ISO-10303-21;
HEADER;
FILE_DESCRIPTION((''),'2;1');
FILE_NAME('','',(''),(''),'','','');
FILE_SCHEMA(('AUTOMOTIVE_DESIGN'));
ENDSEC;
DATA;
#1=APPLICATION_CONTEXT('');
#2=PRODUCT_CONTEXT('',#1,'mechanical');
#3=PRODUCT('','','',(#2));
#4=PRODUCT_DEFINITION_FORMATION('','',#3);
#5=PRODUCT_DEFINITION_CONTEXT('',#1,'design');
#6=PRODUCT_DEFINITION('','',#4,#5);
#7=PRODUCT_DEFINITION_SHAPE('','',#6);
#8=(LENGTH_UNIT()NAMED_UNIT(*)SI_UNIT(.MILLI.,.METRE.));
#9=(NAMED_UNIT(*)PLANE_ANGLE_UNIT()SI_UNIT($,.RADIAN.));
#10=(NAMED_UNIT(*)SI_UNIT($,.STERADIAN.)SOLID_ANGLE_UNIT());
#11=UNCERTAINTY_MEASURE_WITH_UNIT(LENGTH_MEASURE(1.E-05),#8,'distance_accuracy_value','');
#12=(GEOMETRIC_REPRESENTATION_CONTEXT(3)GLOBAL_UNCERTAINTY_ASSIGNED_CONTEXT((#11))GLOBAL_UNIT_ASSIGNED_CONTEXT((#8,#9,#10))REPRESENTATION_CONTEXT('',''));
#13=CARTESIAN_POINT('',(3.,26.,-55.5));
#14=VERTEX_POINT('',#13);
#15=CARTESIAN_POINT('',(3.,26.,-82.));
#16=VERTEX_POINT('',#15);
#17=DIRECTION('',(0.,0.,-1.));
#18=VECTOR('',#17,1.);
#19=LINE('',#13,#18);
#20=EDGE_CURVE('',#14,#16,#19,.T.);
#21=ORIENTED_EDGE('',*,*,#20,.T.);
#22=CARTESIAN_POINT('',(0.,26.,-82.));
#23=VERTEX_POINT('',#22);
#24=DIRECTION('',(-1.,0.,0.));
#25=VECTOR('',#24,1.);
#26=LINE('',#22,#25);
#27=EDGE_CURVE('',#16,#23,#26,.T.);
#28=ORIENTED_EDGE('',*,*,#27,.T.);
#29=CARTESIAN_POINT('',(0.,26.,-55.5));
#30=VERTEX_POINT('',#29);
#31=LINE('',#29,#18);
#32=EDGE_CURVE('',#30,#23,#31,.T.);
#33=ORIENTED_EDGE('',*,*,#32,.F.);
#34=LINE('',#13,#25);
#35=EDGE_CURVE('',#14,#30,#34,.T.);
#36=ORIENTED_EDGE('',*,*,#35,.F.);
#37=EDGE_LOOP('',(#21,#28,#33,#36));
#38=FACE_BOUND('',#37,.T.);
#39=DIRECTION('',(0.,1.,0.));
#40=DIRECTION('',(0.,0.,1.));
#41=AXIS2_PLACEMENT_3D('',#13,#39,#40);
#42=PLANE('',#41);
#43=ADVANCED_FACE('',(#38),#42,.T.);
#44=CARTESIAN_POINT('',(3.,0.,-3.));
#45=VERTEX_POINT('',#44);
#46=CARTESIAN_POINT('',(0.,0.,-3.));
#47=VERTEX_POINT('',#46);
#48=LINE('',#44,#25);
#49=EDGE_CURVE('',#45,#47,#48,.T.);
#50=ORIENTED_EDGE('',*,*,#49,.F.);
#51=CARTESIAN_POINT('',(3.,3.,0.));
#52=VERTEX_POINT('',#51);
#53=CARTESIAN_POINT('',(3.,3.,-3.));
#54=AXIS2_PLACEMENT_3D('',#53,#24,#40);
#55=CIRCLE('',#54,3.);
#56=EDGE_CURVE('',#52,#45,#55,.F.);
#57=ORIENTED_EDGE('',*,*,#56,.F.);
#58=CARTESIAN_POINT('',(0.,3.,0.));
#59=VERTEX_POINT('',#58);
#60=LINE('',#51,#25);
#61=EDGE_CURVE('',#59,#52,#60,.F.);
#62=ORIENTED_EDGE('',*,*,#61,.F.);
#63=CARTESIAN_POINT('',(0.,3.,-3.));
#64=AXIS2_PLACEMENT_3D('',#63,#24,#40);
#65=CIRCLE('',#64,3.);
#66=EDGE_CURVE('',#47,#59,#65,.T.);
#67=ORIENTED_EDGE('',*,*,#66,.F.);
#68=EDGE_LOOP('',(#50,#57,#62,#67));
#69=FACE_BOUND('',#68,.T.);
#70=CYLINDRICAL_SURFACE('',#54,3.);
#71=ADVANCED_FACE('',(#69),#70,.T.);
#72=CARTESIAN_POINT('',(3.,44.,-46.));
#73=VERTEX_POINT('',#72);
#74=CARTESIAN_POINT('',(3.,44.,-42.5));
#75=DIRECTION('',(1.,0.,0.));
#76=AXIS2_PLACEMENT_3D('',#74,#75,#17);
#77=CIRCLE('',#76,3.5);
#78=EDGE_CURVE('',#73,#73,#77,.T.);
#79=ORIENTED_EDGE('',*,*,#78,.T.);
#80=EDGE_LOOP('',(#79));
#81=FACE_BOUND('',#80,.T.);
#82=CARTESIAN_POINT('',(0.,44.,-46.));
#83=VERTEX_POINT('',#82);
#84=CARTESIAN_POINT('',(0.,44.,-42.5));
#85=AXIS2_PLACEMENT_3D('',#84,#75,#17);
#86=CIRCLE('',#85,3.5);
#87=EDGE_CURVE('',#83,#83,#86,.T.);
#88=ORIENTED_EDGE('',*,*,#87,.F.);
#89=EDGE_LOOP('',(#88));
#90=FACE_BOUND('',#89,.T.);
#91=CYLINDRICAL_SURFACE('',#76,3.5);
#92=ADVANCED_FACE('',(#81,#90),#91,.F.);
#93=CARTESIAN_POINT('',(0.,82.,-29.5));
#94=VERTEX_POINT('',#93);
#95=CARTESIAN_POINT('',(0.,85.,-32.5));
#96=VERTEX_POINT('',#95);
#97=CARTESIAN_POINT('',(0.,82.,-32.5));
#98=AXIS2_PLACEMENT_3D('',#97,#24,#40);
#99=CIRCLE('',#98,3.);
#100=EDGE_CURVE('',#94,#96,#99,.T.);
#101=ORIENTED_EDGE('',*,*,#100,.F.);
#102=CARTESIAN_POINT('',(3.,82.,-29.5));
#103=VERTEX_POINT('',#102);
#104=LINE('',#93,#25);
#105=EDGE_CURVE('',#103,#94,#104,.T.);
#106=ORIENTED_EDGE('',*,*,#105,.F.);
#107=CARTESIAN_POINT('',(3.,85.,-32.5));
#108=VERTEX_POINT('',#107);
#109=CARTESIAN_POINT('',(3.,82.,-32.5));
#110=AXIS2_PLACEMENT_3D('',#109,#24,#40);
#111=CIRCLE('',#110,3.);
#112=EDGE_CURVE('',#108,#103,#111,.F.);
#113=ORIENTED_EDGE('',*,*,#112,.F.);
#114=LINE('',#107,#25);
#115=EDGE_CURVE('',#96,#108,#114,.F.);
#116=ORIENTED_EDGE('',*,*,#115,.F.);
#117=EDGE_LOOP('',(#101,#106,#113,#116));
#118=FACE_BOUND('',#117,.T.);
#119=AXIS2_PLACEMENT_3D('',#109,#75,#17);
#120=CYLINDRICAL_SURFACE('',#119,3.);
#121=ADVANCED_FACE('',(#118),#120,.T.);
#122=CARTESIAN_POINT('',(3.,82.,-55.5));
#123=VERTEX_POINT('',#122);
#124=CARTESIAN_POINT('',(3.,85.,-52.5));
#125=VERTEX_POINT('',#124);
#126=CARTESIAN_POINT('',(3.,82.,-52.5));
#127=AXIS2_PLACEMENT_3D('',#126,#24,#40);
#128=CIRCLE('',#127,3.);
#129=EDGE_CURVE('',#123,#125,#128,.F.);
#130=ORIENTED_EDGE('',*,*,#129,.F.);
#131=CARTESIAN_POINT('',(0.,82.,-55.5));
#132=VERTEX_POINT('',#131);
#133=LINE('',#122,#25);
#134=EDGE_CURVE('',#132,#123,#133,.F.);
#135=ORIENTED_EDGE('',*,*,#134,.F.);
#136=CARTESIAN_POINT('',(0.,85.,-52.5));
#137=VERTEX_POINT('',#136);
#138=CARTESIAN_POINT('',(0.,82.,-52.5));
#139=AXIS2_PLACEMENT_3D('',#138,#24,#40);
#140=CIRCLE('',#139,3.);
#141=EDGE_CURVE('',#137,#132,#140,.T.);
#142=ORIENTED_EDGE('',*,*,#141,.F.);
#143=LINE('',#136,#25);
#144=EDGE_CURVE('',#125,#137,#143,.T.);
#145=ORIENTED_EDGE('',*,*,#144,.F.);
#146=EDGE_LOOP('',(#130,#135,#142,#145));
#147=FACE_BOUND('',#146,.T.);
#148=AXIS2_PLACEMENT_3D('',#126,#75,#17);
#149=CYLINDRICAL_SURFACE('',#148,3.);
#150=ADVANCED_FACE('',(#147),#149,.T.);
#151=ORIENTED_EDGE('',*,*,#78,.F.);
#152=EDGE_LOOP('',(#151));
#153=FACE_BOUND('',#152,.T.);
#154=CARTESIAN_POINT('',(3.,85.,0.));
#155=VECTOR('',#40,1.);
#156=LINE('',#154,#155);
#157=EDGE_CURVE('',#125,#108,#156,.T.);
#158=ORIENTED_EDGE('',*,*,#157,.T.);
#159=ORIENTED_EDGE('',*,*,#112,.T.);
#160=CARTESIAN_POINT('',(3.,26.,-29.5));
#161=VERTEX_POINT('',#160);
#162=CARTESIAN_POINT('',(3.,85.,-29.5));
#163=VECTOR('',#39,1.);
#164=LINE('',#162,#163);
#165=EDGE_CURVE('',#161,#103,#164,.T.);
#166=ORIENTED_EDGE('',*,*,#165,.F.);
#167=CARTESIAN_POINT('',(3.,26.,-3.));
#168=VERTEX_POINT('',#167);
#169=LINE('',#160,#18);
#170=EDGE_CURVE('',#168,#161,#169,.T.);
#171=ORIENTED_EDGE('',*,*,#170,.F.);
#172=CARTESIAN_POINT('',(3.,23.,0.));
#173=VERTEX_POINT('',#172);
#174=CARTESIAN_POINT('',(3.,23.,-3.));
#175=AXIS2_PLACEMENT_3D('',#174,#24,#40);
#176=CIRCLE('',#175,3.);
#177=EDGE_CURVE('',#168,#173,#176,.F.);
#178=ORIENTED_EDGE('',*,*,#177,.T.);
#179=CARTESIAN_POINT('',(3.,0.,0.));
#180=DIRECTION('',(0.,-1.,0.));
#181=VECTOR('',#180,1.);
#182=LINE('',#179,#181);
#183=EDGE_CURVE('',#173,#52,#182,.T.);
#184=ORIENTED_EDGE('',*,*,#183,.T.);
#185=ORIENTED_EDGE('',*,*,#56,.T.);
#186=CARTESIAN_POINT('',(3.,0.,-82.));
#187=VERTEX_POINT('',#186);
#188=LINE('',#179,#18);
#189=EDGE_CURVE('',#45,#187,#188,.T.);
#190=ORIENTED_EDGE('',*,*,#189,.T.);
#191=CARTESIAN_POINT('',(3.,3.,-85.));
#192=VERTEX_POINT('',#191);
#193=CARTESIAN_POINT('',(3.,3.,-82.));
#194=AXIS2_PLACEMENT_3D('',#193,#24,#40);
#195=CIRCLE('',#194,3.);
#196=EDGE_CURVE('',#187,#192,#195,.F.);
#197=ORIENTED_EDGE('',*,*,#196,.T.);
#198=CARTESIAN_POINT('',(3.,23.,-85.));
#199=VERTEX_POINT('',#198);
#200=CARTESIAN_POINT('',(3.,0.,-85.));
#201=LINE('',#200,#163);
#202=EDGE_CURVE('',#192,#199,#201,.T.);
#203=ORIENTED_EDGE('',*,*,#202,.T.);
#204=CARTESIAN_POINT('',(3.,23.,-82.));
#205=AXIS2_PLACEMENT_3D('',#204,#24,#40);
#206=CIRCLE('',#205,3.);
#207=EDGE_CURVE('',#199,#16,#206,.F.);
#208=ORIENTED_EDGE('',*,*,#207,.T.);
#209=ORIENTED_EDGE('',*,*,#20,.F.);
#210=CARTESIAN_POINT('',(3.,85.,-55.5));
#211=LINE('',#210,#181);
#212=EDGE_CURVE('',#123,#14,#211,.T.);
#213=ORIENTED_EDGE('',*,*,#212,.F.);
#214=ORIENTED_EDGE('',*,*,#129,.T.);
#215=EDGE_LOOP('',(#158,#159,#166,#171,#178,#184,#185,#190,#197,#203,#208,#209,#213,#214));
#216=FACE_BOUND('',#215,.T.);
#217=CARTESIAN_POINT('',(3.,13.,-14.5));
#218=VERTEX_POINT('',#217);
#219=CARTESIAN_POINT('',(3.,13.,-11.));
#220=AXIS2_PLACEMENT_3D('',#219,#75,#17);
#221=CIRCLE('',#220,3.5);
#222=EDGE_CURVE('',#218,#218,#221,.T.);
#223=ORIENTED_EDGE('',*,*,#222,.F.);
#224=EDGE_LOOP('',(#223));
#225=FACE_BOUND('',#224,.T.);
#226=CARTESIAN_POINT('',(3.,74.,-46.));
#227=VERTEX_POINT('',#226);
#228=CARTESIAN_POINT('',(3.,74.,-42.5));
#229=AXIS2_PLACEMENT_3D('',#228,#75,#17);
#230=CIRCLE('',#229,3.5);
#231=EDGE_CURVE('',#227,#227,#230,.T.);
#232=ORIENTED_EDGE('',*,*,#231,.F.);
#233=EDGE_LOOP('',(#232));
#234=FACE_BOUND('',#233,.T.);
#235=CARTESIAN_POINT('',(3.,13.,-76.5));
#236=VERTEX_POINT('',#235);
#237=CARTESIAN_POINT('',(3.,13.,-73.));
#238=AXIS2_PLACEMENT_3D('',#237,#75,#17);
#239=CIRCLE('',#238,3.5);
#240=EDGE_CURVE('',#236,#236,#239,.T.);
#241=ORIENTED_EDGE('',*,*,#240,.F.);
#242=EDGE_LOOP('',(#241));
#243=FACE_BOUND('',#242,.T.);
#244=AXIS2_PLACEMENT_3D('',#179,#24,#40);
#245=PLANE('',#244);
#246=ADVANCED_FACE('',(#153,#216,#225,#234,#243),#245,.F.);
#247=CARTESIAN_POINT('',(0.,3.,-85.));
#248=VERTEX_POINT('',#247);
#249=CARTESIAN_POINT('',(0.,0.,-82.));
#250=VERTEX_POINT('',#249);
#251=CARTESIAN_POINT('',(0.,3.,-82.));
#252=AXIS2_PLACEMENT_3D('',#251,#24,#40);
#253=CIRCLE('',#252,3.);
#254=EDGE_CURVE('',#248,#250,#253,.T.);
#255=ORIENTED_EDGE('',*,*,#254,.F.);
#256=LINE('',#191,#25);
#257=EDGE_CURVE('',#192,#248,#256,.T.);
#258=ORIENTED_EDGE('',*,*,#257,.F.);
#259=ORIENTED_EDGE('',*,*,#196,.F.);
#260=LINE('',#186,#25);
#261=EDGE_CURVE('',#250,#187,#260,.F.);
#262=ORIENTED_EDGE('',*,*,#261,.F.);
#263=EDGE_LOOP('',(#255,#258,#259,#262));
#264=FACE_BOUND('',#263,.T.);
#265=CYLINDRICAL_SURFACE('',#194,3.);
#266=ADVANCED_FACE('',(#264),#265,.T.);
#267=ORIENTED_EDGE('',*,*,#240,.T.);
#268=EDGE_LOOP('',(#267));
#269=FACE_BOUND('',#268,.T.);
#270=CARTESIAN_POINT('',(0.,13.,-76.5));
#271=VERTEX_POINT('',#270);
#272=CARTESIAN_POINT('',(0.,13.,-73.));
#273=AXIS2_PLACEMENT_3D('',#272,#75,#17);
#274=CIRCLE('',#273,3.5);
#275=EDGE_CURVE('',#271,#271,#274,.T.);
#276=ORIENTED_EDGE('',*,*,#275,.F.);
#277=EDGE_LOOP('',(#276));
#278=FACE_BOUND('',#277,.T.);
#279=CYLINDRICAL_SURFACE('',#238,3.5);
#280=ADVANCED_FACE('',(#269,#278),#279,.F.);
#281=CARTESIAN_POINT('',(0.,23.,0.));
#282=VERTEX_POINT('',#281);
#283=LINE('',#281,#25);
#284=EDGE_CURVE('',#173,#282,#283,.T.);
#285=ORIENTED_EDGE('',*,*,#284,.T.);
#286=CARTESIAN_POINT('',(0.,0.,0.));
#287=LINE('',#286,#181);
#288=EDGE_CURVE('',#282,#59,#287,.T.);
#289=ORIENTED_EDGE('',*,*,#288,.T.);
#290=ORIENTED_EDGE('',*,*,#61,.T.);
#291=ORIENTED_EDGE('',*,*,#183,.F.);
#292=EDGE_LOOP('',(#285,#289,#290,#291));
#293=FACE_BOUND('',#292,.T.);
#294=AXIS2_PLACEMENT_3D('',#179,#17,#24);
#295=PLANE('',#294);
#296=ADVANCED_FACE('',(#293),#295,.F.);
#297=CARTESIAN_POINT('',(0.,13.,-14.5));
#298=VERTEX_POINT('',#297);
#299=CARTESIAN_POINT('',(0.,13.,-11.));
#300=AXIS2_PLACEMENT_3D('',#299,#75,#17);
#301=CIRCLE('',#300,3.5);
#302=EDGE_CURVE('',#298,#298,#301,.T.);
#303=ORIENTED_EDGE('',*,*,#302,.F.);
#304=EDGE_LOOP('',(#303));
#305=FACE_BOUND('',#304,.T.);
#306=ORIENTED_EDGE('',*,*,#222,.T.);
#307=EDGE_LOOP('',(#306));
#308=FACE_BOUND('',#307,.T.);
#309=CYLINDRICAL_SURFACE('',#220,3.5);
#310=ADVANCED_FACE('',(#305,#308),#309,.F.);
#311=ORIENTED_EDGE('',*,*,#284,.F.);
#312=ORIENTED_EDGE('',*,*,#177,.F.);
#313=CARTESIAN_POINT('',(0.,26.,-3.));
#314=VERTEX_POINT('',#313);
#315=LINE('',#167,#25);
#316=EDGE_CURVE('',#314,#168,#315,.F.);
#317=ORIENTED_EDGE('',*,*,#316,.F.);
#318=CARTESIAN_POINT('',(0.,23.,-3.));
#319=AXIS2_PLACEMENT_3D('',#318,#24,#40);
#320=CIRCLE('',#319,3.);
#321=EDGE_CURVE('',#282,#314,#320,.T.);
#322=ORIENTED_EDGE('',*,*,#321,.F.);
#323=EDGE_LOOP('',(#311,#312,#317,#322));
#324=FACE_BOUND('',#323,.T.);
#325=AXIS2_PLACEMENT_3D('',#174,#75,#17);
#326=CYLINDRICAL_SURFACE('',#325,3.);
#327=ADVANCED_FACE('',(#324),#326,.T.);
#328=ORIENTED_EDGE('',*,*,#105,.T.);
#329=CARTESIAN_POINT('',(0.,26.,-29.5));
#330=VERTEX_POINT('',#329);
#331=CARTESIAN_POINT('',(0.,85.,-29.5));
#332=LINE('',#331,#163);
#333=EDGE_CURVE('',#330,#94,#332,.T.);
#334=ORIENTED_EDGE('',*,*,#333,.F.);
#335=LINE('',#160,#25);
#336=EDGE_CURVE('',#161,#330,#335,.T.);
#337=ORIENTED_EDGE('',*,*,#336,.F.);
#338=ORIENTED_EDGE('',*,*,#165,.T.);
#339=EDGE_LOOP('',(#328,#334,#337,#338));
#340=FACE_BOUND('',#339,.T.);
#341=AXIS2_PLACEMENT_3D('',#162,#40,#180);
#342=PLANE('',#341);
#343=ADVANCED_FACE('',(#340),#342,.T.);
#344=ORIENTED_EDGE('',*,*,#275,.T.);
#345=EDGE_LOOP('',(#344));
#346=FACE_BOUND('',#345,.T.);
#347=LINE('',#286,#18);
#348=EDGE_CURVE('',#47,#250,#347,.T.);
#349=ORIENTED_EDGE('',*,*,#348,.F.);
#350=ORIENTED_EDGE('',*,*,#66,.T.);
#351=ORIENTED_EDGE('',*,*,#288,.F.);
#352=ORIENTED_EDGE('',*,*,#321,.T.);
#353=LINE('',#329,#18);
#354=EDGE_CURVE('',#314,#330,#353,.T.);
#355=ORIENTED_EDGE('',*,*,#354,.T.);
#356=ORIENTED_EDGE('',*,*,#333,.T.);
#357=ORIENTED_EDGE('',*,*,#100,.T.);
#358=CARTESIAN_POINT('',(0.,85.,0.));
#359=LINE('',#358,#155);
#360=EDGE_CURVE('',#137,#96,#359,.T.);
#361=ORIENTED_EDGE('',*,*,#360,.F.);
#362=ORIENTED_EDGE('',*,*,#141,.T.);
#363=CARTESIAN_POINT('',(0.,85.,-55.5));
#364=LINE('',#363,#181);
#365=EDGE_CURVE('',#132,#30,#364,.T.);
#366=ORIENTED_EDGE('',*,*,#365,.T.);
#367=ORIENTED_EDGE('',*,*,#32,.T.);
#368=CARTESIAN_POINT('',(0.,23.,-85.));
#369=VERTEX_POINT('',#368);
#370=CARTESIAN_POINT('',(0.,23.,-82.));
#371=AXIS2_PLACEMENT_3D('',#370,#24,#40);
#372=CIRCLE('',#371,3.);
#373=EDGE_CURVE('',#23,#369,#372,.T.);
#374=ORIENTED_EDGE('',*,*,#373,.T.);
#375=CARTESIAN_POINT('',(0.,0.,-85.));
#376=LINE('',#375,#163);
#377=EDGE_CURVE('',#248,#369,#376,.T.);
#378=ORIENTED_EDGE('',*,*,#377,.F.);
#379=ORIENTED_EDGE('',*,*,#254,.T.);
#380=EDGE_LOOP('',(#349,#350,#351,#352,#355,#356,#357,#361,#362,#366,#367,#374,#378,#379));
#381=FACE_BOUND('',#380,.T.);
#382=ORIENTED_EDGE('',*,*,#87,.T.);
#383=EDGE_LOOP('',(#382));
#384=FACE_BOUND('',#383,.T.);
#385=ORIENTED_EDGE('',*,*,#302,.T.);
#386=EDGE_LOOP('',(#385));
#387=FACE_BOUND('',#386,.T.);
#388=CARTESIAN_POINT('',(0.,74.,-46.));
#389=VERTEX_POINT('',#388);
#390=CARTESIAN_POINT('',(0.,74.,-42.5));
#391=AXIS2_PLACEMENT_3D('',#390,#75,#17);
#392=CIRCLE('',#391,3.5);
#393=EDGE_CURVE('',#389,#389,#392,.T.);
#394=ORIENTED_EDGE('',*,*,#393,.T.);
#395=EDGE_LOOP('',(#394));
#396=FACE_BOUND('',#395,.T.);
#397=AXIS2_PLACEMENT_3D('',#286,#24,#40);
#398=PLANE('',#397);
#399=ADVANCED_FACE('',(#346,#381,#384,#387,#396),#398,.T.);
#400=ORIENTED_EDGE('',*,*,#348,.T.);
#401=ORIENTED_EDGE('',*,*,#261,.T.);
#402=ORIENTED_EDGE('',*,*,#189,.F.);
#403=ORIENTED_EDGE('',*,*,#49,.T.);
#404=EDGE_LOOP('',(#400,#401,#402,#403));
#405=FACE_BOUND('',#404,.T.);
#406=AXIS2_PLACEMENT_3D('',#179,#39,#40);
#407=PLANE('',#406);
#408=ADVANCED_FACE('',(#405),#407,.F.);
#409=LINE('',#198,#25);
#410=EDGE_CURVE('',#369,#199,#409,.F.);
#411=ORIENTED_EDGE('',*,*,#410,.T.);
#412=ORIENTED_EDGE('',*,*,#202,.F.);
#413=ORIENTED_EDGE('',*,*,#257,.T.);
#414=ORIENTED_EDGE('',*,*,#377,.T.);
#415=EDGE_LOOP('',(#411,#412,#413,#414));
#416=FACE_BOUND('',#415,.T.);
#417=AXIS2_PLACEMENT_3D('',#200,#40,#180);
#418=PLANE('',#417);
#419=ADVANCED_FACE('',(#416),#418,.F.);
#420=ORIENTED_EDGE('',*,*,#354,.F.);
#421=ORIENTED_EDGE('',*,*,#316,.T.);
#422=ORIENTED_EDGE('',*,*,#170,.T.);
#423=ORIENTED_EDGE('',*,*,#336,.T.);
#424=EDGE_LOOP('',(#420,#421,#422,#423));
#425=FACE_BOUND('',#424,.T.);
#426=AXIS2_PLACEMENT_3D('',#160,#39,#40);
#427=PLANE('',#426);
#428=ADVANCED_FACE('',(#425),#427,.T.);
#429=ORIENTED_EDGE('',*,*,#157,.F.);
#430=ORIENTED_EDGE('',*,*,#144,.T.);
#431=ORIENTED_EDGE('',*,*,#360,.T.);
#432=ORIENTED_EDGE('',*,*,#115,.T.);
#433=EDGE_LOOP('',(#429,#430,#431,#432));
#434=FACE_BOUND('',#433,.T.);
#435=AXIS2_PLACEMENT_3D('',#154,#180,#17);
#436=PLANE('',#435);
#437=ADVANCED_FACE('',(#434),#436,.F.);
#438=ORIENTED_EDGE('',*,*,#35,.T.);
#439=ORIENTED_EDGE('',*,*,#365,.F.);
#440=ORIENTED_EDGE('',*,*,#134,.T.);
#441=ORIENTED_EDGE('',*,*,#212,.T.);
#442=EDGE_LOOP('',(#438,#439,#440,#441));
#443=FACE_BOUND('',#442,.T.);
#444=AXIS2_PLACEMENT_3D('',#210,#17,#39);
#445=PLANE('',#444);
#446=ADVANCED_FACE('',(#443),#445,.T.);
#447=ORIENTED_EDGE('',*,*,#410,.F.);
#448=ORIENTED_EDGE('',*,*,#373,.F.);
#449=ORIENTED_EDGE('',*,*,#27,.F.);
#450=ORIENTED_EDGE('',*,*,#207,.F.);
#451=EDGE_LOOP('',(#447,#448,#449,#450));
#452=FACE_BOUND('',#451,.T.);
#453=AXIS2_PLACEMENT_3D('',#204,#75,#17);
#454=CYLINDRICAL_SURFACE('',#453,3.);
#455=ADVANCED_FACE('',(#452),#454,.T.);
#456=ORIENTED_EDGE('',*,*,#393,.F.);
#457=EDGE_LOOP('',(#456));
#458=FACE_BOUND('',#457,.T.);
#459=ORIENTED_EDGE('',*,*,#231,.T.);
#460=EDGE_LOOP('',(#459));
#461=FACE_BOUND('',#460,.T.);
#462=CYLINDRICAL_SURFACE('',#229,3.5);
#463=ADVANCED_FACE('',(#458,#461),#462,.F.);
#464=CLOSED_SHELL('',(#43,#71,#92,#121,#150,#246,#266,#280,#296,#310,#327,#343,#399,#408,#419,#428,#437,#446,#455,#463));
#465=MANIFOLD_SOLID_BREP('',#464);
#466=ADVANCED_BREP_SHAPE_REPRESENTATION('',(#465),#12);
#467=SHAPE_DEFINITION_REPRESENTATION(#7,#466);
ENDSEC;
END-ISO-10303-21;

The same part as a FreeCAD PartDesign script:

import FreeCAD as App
import Part
import Sketcher
from FreeCAD import Vector
Q = App.Units.Quantity


def edges_at(feature, points):
    """Names of the edges that pass closest to the given points."""
    edges = feature.Shape.Edges
    near = lambda p: min(range(len(edges)), key=lambda i: edges[i].distToShape(Part.Vertex(*p))[0])
    return sorted({f"Edge{near(p) + 1}" for p in points})

doc = App.newDocument("Part")
body = doc.addObject("PartDesign::Body", "Body")

# Sketch on YZ plane
sketch1 = doc.addObject("Sketcher::SketchObject", "Sketch")
body.addObject(sketch1)
sketch1.AttachmentSupport = (doc.YZ_Plane, [""])
sketch1.MapMode = "FlatFace"
sketch1.addGeometry([
    Part.LineSegment(Vector(85, 0, 0), Vector(0, 0, 0)),
    Part.LineSegment(Vector(0, 0, 0), Vector(0, -85, 0)),
    Part.LineSegment(Vector(0, -85, 0), Vector(85, -85, 0)),
    Part.LineSegment(Vector(85, -85, 0), Vector(85, 0, 0)),
], False)
sketch1.addConstraint([
    Sketcher.Constraint("Coincident", 0, 2, 1, 1),
    Sketcher.Constraint("Coincident", 1, 2, 2, 1),
    Sketcher.Constraint("Coincident", 2, 2, 3, 1),
    Sketcher.Constraint("Coincident", 3, 2, 0, 1),
    Sketcher.Constraint("Horizontal", 0),
    Sketcher.Constraint("Vertical", 1),
    Sketcher.Constraint("Horizontal", 2),
    Sketcher.Constraint("Vertical", 3),
    Sketcher.Constraint("Coincident", 0, 2, -1, 1),
    Sketcher.Constraint("Equal", 2, 1),
    Sketcher.Constraint("DistanceX", 0, 2, 0, 1, Q("85 mm")),
])
pad1 = doc.addObject("PartDesign::Pad", "Pad")
body.addObject(pad1)
pad1.Profile = sketch1
pad1.Length = 3

# Sketch on YZ plane
sketch2 = doc.addObject("Sketcher::SketchObject", "Sketch001")
body.addObject(sketch2)
sketch2.AttachmentSupport = (doc.YZ_Plane, [""])
sketch2.MapMode = "FlatFace"
sketch2.addGeometry([
    Part.LineSegment(Vector(85, 0, 0), Vector(26, 0, 0)),  # 0
    Part.LineSegment(Vector(26, 0, 0), Vector(26, -30, 0)),  # 1
    Part.LineSegment(Vector(26, -30, 0), Vector(85, -30, 0)),  # 2
    Part.LineSegment(Vector(85, -30, 0), Vector(85, 0, 0)),  # 3
    Part.LineSegment(Vector(85, -56, 0), Vector(26, -56, 0)),  # 4
    Part.LineSegment(Vector(26, -56, 0), Vector(26, -85, 0)),  # 5
    Part.LineSegment(Vector(26, -85, 0), Vector(85, -85, 0)),  # 6
    Part.LineSegment(Vector(85, -85, 0), Vector(85, -56, 0)),  # 7
], False)
sketch2.addConstraint([
    Sketcher.Constraint("Coincident", 0, 2, 1, 1),
    Sketcher.Constraint("Coincident", 1, 2, 2, 1),
    Sketcher.Constraint("Coincident", 2, 2, 3, 1),
    Sketcher.Constraint("Coincident", 3, 2, 0, 1),
    Sketcher.Constraint("Coincident", 4, 2, 5, 1),
    Sketcher.Constraint("Coincident", 5, 2, 6, 1),
    Sketcher.Constraint("Coincident", 6, 2, 7, 1),
    Sketcher.Constraint("Coincident", 7, 2, 4, 1),
    Sketcher.Constraint("Horizontal", 0),
    Sketcher.Constraint("Vertical", 1),
    Sketcher.Constraint("Horizontal", 2),
    Sketcher.Constraint("Vertical", 3),
    Sketcher.Constraint("Horizontal", 4),
    Sketcher.Constraint("Vertical", 5),
    Sketcher.Constraint("Horizontal", 6),
    Sketcher.Constraint("Vertical", 7),
    Sketcher.Constraint("PointOnObject", 0, 2, -1),
    Sketcher.Constraint("Vertical", 1, 2, 4, 2),
    Sketcher.Constraint("Vertical", 3, 2, 6, 2),
    Sketcher.Constraint("Equal", 3, 5),
    Sketcher.Constraint("DistanceX", 0, 2, 0, 1, Q("59 mm")),
    Sketcher.Constraint("DistanceY", 1, 2, 1, 1, Q("29.5 mm")),
    Sketcher.Constraint("DistanceX", -1, 1, 0, 2, Q("26 mm")),
    Sketcher.Constraint("DistanceY", 5, 2, -1, 1, Q("85 mm")),
])
pocket1 = doc.addObject("PartDesign::Pocket", "Pocket")
body.addObject(pocket1)
pocket1.Profile = sketch2
pocket1.Type = "ThroughAll"
pocket1.Reversed = True

# Sketch on YZ plane
sketch3 = doc.addObject("Sketcher::SketchObject", "Sketch002")
body.addObject(sketch3)
sketch3.AttachmentSupport = (doc.YZ_Plane, [""])
sketch3.MapMode = "FlatFace"
sketch3.AttachmentOffset = App.Placement(Vector(0, 0, 3), App.Rotation())
sketch3.addGeometry([
    Part.Circle(Vector(74, -42.5, 0), Vector(0, 0, 1), 3.5),
    Part.Circle(Vector(44, -42.5, 0), Vector(0, 0, 1), 3.5),
    Part.Circle(Vector(13, -11, 0), Vector(0, 0, 1), 3.5),
    Part.Circle(Vector(13, -73, 0), Vector(0, 0, 1), 3.5),
], False)
sketch3.addConstraint([
    Sketcher.Constraint("Equal", 0, 1),
    Sketcher.Constraint("Equal", 1, 2),
    Sketcher.Constraint("Equal", 2, 3),
    Sketcher.Constraint("Horizontal", 0, 3, 1, 3),
    Sketcher.Constraint("Vertical", 2, 3, 3, 3),
    Sketcher.Constraint("Diameter", 0, Q("7 mm")),
    Sketcher.Constraint("DistanceX", -1, 1, 0, 3, Q("74 mm")),
    Sketcher.Constraint("DistanceX", -1, 1, 1, 3, Q("44 mm")),
    Sketcher.Constraint("DistanceX", -1, 1, 2, 3, Q("13 mm")),
    Sketcher.Constraint("DistanceY", 2, 3, -1, 1, Q("11 mm")),
    Sketcher.Constraint("DistanceY", 3, 3, -1, 1, Q("73 mm")),
    Sketcher.Constraint("DistanceY", 0, 3, -1, 1, Q("42.5 mm")),
])
doc.recompute()
hole = doc.addObject("PartDesign::Hole", "Hole")
body.addObject(hole)
hole.Profile = sketch3
hole.ThreadType = "None"
hole.Diameter = 7
hole.DepthType = "ThroughAll"
doc.recompute()

fillet = doc.addObject("PartDesign::Fillet", "Fillet")
body.addObject(fillet)
fillet.Base = (hole, edges_at(hole, [
    (1.5, 26, 0),
    (1.5, 85, -29.5),
    (1.5, 26, -85),
    (1.5, 85, -55.5),
    (1.5, 0, -85),
    (1.5, 0, 0),
]))
fillet.Radius = 3

doc.recompute()
